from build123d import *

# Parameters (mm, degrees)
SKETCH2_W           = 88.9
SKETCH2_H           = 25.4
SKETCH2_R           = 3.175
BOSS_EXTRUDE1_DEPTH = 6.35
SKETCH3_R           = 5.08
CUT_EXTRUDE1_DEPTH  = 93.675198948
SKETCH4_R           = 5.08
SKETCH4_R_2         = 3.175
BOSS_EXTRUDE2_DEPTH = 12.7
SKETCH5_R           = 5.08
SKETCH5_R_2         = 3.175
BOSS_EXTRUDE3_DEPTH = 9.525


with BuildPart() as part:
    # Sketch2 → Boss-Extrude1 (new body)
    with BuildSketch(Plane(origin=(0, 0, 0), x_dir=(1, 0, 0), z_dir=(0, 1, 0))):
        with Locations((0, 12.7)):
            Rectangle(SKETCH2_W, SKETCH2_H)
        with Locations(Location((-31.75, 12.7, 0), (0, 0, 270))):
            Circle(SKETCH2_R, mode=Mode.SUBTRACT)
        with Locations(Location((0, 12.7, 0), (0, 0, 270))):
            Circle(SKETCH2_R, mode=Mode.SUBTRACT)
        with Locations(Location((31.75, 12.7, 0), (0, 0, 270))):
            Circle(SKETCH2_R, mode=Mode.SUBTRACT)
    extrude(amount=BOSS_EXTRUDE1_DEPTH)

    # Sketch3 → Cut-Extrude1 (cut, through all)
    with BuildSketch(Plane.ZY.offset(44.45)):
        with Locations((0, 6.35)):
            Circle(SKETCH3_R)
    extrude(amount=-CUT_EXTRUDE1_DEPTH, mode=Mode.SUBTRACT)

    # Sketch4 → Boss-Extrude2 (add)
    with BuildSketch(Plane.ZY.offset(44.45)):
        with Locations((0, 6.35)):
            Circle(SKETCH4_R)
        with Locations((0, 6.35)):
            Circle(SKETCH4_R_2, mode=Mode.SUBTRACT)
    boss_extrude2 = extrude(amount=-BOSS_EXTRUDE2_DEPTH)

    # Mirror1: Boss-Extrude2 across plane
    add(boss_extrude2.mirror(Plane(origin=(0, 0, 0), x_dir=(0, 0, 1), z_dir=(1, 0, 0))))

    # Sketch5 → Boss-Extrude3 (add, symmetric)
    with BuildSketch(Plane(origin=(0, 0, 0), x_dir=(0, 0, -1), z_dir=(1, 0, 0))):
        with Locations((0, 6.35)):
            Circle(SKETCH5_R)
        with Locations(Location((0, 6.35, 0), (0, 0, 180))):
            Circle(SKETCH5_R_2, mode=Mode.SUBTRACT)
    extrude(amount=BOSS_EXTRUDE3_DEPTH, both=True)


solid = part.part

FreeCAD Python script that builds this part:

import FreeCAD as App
import Part
import Sketcher
from FreeCAD import Vector
Q = App.Units.Quantity

doc = App.newDocument("Part")
body = doc.addObject("PartDesign::Body", "Body")

sketch1 = doc.addObject("Sketcher::SketchObject", "Sketch")
body.addObject(sketch1)
sketch1.AttachmentSupport = (doc.XZ_Plane, [""])
sketch1.MapMode = "FlatFace"
sketch1.addGeometry(Part.LineSegment(Vector(-44.5, -25.4, 0), Vector(-44.5, 0, 0)), False)
sketch1.addGeometry(Part.LineSegment(Vector(-44.5, 0, 0), Vector(44.5, 0, 0)), False)
sketch1.addGeometry(Part.LineSegment(Vector(44.5, 0, 0), Vector(44.5, -25.4, 0)), False)
sketch1.addGeometry(Part.LineSegment(Vector(44.5, -25.4, 0), Vector(-44.5, -25.4, 0)), False)
sketch1.addGeometry(Part.Circle(Vector(-31.8, -12.7, 0), Vector(0, 0, 1), 3.2), False)
sketch1.addGeometry(Part.Circle(Vector(0, -12.7, 0), Vector(0, 0, 1), 3.2), False)
sketch1.addGeometry(Part.Circle(Vector(31.8, -12.7, 0), Vector(0, 0, 1), 3.2), False)
sketch1.addConstraint(Sketcher.Constraint("Coincident", 0, 2, 1, 1))
sketch1.addConstraint(Sketcher.Constraint("Coincident", 1, 2, 2, 1))
sketch1.addConstraint(Sketcher.Constraint("Coincident", 2, 2, 3, 1))
sketch1.addConstraint(Sketcher.Constraint("Coincident", 3, 2, 0, 1))
sketch1.addConstraint(Sketcher.Constraint("Vertical", 0))
sketch1.addConstraint(Sketcher.Constraint("Horizontal", 1))
sketch1.addConstraint(Sketcher.Constraint("Vertical", 2))
sketch1.addConstraint(Sketcher.Constraint("Horizontal", 3))
sketch1.addConstraint(Sketcher.Constraint("Equal", 4, 5))
sketch1.addConstraint(Sketcher.Constraint("Equal", 5, 6))
sketch1.addConstraint(Sketcher.Constraint("Symmetric", 0, 2, 1, 2, -1, 1))
sketch1.addConstraint(Sketcher.Constraint("Symmetric", 4, 3, 6, 3, -2))
sketch1.addConstraint(Sketcher.Constraint("PointOnObject", 5, 3, -2))
sketch1.addConstraint(Sketcher.Constraint("Horizontal", 4, 3, 5, 3))
sketch1.addConstraint(Sketcher.Constraint("Diameter", 4, Q("0.25 in")))
sketch1.addConstraint(Sketcher.Constraint("DistanceY", 0, 1, 0, 2, Q("1 in")))
sketch1.addConstraint(Sketcher.Constraint("DistanceX", 1, 1, 1, 2, Q("3.5 in")))
sketch1.addConstraint(Sketcher.Constraint("DistanceX", 0, 2, 6, 3, Q("3 in")))
sketch1.addConstraint(Sketcher.Constraint("DistanceY", 4, 3, -1, 1, Q("0.5 in")))
pad1 = doc.addObject("PartDesign::Pad", "Pad")
body.addObject(pad1)
pad1.Profile = sketch1
pad1.Length = Q("0.25 in")
pad1.Reversed = True

sketch2 = doc.addObject("Sketcher::SketchObject", "Sketch001")
body.addObject(sketch2)
sketch2.AttachmentSupport = (doc.YZ_Plane, [""])
sketch2.MapMode = "FlatFace"
sketch2.AttachmentOffset = App.Placement(Vector(0, 0, -1.75 * 25.4), App.Rotation())
sketch2.addGeometry(Part.Circle(Vector(6, 0, 0), Vector(0, 0, 1), 5), False)
sketch2.addConstraint(Sketcher.Constraint("PointOnObject", 0, 3, -1))
sketch2.addConstraint(Sketcher.Constraint("Diameter", 0, Q("0.4 in")))
sketch2.addConstraint(Sketcher.Constraint("DistanceX", -1, 1, 0, 3, Q("0.25 in")))
pocket1 = doc.addObject("PartDesign::Pocket", "Pocket")
body.addObject(pocket1)
pocket1.Profile = sketch2
pocket1.Type = "ThroughAll"
pocket1.Reversed = True

sketch3 = doc.addObject("Sketcher::SketchObject", "Sketch002")
body.addObject(sketch3)
sketch3.AttachmentSupport = (doc.YZ_Plane, [""])
sketch3.MapMode = "FlatFace"
sketch3.AttachmentOffset = App.Placement(Vector(0, 0, -1.75 * 25.4), App.Rotation())
sketch3.addGeometry(Part.Circle(Vector(6.3, 0, 0), Vector(0, 0, 1), 5.1), False)
sketch3.addGeometry(Part.Circle(Vector(6.3, 0, 0), Vector(0, 0, 1), 3.2), False)
sketch3.addConstraint(Sketcher.Constraint("Coincident", 1, 3, 0, 3))
sketch3.addConstraint(Sketcher.Constraint("PointOnObject", 0, 3, -1))
sketch3.addConstraint(Sketcher.Constraint("Diameter", 0, Q("0.4 in")))
sketch3.addConstraint(Sketcher.Constraint("Diameter", 1, Q("0.25 in")))
sketch3.addConstraint(Sketcher.Constraint("DistanceX", -1, 1, 0, 3, Q("0.25 in")))
pad2 = doc.addObject("PartDesign::Pad", "Pad001")
body.addObject(pad2)
pad2.Profile = sketch3
pad2.Length = Q("0.5 in")
doc.recompute()

mirrored = doc.addObject("PartDesign::Mirrored", "Mirrored")
body.addObject(mirrored)
mirrored.Originals = [pad2]
mirrored.MirrorPlane = (doc.YZ_Plane, [""])
body.Tip = mirrored

sketch4 = doc.addObject("Sketcher::SketchObject", "Sketch003")
body.addObject(sketch4)
sketch4.AttachmentSupport = (doc.YZ_Plane, [""])
sketch4.MapMode = "FlatFace"
sketch4.addGeometry(Part.Circle(Vector(6.3, 0, 0), Vector(0, 0, 1), 5.1), False)
sketch4.addGeometry(Part.Circle(Vector(6.3, 0, 0), Vector(0, 0, 1), 3.2), False)
sketch4.addConstraint(Sketcher.Constraint("Coincident", 1, 3, 0, 3))
sketch4.addConstraint(Sketcher.Constraint("PointOnObject", 0, 3, -1))
sketch4.addConstraint(Sketcher.Constraint("Diameter", 0, Q("0.4 in")))
sketch4.addConstraint(Sketcher.Constraint("Diameter", 1, Q("0.25 in")))
sketch4.addConstraint(Sketcher.Constraint("DistanceX", -1, 1, 0, 3, Q("0.25 in")))
pad3 = doc.addObject("PartDesign::Pad", "Pad002")
body.addObject(pad3)
pad3.Profile = sketch4
pad3.Length = Q("0.75 in")
pad3.Midplane = True

doc.recompute()
